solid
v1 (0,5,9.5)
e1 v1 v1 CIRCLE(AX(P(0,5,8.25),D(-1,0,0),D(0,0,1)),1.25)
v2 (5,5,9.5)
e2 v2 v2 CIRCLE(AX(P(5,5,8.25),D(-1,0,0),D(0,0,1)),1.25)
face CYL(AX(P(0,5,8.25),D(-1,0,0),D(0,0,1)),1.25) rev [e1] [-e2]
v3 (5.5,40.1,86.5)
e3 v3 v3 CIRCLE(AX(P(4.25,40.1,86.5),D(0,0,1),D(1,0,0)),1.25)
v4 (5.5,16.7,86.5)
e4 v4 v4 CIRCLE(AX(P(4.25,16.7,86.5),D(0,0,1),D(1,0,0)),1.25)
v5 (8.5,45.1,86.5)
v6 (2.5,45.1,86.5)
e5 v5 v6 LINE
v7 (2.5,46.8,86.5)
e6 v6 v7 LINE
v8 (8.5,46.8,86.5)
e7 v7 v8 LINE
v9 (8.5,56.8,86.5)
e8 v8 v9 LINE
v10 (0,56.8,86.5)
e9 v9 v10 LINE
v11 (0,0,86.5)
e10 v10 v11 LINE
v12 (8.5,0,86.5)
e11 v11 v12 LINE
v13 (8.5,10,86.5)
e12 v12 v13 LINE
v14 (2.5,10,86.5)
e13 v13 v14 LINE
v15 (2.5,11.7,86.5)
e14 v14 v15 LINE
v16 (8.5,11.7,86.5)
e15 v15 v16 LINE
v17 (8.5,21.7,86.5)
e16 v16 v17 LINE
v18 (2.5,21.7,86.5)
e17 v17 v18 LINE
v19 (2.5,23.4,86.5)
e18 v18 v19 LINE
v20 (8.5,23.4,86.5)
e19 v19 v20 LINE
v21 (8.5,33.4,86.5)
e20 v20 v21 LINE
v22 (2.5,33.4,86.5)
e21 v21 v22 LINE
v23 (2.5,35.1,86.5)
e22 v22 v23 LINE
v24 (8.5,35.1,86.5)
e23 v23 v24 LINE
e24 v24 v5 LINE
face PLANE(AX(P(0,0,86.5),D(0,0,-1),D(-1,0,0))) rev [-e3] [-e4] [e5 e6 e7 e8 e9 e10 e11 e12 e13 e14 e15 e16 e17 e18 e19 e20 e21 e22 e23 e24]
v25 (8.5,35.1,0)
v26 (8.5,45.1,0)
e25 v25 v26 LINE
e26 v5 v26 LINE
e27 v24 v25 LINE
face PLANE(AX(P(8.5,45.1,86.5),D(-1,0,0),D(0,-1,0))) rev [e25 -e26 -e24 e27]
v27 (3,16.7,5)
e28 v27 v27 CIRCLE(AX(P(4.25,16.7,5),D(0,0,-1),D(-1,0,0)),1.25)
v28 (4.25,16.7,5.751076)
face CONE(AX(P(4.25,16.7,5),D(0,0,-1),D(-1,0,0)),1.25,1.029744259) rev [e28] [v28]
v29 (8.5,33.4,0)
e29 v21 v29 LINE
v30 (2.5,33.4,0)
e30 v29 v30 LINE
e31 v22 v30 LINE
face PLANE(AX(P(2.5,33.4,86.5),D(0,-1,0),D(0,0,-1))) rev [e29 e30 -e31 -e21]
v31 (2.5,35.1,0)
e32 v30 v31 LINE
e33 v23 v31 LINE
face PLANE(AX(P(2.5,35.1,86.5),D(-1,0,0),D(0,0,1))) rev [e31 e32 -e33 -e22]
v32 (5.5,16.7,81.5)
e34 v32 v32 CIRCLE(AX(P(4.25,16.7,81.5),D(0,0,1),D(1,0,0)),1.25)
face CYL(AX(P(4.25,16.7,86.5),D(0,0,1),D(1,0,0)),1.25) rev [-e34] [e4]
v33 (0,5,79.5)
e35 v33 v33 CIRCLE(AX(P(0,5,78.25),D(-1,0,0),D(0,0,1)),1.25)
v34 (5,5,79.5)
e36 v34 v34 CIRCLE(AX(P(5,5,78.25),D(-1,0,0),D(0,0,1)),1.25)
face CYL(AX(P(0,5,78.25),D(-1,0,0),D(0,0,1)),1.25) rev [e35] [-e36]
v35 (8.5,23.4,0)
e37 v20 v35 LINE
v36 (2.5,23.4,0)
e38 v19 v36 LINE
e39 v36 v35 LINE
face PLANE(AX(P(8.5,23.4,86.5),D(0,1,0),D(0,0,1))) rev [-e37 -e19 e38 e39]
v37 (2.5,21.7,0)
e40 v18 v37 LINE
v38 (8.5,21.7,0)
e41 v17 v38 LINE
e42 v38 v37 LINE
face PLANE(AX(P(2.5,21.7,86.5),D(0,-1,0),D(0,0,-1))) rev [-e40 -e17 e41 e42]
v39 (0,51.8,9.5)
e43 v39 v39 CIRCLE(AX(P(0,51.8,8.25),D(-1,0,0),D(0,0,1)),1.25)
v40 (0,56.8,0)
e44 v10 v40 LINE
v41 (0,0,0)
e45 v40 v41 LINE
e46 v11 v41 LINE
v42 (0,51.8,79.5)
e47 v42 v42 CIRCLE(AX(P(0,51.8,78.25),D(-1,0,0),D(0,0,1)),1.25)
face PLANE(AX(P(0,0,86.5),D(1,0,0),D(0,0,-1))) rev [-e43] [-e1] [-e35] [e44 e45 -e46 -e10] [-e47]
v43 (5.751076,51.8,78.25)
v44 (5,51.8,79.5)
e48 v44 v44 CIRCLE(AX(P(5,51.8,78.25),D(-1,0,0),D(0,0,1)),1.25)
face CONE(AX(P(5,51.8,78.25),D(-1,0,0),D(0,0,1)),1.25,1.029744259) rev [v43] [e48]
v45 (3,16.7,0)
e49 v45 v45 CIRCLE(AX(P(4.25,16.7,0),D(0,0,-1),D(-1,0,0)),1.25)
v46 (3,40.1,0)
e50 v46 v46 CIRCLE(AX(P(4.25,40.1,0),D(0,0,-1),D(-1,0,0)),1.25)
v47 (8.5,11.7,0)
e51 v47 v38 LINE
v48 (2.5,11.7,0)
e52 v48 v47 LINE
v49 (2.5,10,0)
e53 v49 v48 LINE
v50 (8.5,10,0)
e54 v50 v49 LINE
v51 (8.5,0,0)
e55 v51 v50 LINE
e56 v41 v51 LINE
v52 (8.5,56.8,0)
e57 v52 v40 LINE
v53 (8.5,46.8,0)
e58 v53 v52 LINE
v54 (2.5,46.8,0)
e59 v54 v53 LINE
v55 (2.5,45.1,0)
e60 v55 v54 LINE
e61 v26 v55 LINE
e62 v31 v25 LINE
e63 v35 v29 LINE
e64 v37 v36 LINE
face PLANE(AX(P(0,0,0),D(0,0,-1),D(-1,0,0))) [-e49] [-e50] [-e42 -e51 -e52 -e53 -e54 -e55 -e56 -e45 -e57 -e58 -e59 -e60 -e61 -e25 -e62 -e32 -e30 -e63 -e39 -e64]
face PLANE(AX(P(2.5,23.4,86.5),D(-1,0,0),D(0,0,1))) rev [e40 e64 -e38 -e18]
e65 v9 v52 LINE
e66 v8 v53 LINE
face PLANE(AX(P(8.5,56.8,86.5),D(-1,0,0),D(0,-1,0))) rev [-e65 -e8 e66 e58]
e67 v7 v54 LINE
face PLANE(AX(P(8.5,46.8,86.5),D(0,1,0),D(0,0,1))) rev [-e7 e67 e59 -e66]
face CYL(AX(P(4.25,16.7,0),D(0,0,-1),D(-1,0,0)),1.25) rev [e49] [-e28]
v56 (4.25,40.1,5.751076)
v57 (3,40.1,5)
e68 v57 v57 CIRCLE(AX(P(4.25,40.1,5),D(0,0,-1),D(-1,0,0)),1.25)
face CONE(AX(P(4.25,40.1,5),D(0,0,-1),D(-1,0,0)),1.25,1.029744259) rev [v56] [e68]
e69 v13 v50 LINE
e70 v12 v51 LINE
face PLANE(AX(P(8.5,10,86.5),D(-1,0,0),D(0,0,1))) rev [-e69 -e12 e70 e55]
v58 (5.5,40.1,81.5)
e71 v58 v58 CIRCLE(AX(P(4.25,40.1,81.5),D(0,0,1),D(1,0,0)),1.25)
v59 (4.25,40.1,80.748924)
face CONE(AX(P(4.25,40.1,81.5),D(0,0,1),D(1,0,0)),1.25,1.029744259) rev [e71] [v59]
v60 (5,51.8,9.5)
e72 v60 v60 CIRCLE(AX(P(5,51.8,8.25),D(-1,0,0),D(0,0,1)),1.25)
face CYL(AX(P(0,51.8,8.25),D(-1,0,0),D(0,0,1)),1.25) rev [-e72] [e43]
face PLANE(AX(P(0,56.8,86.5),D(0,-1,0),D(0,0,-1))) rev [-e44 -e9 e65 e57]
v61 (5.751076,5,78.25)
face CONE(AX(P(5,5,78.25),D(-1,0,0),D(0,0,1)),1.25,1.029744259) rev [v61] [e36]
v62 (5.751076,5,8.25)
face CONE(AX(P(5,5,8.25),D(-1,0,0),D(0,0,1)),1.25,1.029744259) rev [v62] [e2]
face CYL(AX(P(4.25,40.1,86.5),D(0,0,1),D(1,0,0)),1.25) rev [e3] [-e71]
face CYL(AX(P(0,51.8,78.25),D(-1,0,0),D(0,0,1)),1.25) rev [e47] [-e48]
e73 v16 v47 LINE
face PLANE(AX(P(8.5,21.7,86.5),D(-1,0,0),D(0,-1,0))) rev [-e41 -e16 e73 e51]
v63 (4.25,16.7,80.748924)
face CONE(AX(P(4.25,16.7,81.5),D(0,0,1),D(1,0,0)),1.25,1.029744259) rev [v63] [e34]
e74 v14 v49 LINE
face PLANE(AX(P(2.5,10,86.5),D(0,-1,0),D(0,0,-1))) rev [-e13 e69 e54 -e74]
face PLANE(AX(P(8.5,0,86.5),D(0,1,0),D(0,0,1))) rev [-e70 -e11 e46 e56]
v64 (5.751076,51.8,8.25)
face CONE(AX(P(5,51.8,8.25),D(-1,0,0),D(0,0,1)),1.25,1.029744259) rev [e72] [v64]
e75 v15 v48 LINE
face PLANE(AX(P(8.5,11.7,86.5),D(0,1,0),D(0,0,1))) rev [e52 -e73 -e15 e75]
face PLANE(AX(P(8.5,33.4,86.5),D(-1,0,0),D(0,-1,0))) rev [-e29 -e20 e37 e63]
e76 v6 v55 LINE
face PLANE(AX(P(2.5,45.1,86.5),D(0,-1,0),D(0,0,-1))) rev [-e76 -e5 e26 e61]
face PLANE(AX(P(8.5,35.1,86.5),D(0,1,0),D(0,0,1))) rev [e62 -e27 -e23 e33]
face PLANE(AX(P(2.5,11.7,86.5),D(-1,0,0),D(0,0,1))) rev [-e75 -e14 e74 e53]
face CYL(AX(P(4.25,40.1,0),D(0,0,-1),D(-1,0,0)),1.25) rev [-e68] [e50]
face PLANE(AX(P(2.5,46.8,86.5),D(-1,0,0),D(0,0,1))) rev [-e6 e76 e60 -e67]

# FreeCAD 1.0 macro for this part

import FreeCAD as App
import Part
import Sketcher

V = App.Vector
Q = App.Units.Quantity

doc = App.newDocument("Part")
body = doc.addObject("PartDesign::Body", "Body")

# Sketch on XY plane
sketch1 = doc.addObject("Sketcher::SketchObject", "Sketch")
body.addObject(sketch1)
sketch1.AttachmentSupport = (doc.XY_Plane, [""])
sketch1.MapMode = "FlatFace"
sketch1.addGeometry([
    Part.LineSegment(V(0, 56.8, 0), V(0, 0, 0)),  # 0
    Part.LineSegment(V(0, 0, 0), V(8.5, 0, 0)),  # 1
    Part.LineSegment(V(8.5, 0, 0), V(8.5, 10, 0)),  # 2
    Part.LineSegment(V(8.5, 10, 0), V(2.5, 10, 0)),  # 3
    Part.LineSegment(V(2.5, 10, 0), V(2.5, 11.7, 0)),  # 4
    Part.LineSegment(V(2.5, 11.7, 0), V(8.5, 11.7, 0)),  # 5
    Part.LineSegment(V(8.5, 11.7, 0), V(8.5, 21.7, 0)),  # 6
    Part.LineSegment(V(8.5, 21.7, 0), V(2.5, 21.7, 0)),  # 7
    Part.LineSegment(V(2.5, 21.7, 0), V(2.5, 23.4, 0)),  # 8
    Part.LineSegment(V(2.5, 23.4, 0), V(8.5, 23.4, 0)),  # 9
    Part.LineSegment(V(8.5, 23.4, 0), V(8.5, 33.4, 0)),  # 10
    Part.LineSegment(V(8.5, 33.4, 0), V(2.5, 33.4, 0)),  # 11
    Part.LineSegment(V(2.5, 33.4, 0), V(2.5, 35.1, 0)),  # 12
    Part.LineSegment(V(2.5, 35.1, 0), V(8.5, 35.1, 0)),  # 13
    Part.LineSegment(V(8.5, 35.1, 0), V(8.5, 45.1, 0)),  # 14
    Part.LineSegment(V(8.5, 45.1, 0), V(2.5, 45.1, 0)),  # 15
    Part.LineSegment(V(2.5, 45.1, 0), V(2.5, 46.8, 0)),  # 16
    Part.LineSegment(V(2.5, 46.8, 0), V(8.5, 46.8, 0)),  # 17
    Part.LineSegment(V(8.5, 46.8, 0), V(8.5, 56.8, 0)),  # 18
    Part.LineSegment(V(8.5, 56.8, 0), V(0, 56.8, 0)),  # 19
], False)
sketch1.addConstraint([
    Sketcher.Constraint("Coincident", 0, 2, 1, 1),
    Sketcher.Constraint("Coincident", 1, 2, 2, 1),
    Sketcher.Constraint("Coincident", 2, 2, 3, 1),
    Sketcher.Constraint("Coincident", 3, 2, 4, 1),
    Sketcher.Constraint("Coincident", 4, 2, 5, 1),
    Sketcher.Constraint("Coincident", 5, 2, 6, 1),
    Sketcher.Constraint("Coincident", 6, 2, 7, 1),
    Sketcher.Constraint("Coincident", 7, 2, 8, 1),
    Sketcher.Constraint("Coincident", 8, 2, 9, 1),
    Sketcher.Constraint("Coincident", 9, 2, 10, 1),
    Sketcher.Constraint("Coincident", 10, 2, 11, 1),
    Sketcher.Constraint("Coincident", 11, 2, 12, 1),
    Sketcher.Constraint("Coincident", 12, 2, 13, 1),
    Sketcher.Constraint("Coincident", 13, 2, 14, 1),
    Sketcher.Constraint("Coincident", 14, 2, 15, 1),
    Sketcher.Constraint("Coincident", 15, 2, 16, 1),
    Sketcher.Constraint("Coincident", 16, 2, 17, 1),
    Sketcher.Constraint("Coincident", 17, 2, 18, 1),
    Sketcher.Constraint("Coincident", 18, 2, 19, 1),
    Sketcher.Constraint("Coincident", 19, 2, 0, 1),
    Sketcher.Constraint("Vertical", 0),
    Sketcher.Constraint("Horizontal", 1),
    Sketcher.Constraint("Vertical", 2),
    Sketcher.Constraint("Horizontal", 3),
    Sketcher.Constraint("Vertical", 4),
    Sketcher.Constraint("Horizontal", 5),
    Sketcher.Constraint("Vertical", 6),
    Sketcher.Constraint("Horizontal", 7),
    Sketcher.Constraint("Vertical", 8),
    Sketcher.Constraint("Horizontal", 9),
    Sketcher.Constraint("Vertical", 10),
    Sketcher.Constraint("Horizontal", 11),
    Sketcher.Constraint("Vertical", 12),
    Sketcher.Constraint("Horizontal", 13),
    Sketcher.Constraint("Vertical", 14),
    Sketcher.Constraint("Horizontal", 15),
    Sketcher.Constraint("Vertical", 16),
    Sketcher.Constraint("Horizontal", 17),
    Sketcher.Constraint("Vertical", 18),
    Sketcher.Constraint("Horizontal", 19),
    Sketcher.Constraint("Coincident", 0, 2, -1, 1),
    Sketcher.Constraint("Vertical", 2, 2, 5, 2),
    Sketcher.Constraint("Vertical", 4, 2, 7, 2),
    Sketcher.Constraint("Vertical", 6, 2, 9, 2),
    Sketcher.Constraint("Vertical", 8, 2, 11, 2),
    Sketcher.Constraint("Vertical", 10, 2, 13, 2),
    Sketcher.Constraint("Vertical", 12, 2, 15, 2),
    Sketcher.Constraint("Vertical", 14, 2, 17, 2),
    Sketcher.Constraint("Equal", 2, 6),
    Sketcher.Constraint("Equal", 4, 8),
    Sketcher.Constraint("Equal", 6, 10),
    Sketcher.Constraint("Equal", 8, 12),
    Sketcher.Constraint("Equal", 10, 14),
    Sketcher.Constraint("Equal", 12, 16),
    Sketcher.Constraint("Equal", 14, 18),
    Sketcher.Constraint("DistanceX", 3, 2, 3, 1, Q("6 mm")),
    Sketcher.Constraint("DistanceY", 2, 1, 2, 2, Q("10 mm")),
    Sketcher.Constraint("DistanceX", 1, 1, 1, 2, Q("8.5 mm")),
    Sketcher.Constraint("DistanceY", 0, 2, 0, 1, Q("56.8 mm")),
])
pad1 = doc.addObject("PartDesign::Pad", "Pad")
body.addObject(pad1)
pad1.Profile = sketch1
pad1.Length = 86.5

# Sketch on YZ plane
sketch2 = doc.addObject("Sketcher::SketchObject", "Sketch001")
body.addObject(sketch2)
sketch2.AttachmentSupport = (doc.YZ_Plane, [""])
sketch2.MapMode = "FlatFace"
sketch2.AttachmentOffset = App.Placement(V(0, 0, 4.25), App.Rotation())
sketch2.addGeometry([
    Part.LineSegment(V(40.1, 80.7, 0), V(40.1, 86.5, 0)),
    Part.LineSegment(V(40.1, 86.5, 0), V(38.9, 86.5, 0)),
    Part.LineSegment(V(38.9, 86.5, 0), V(38.9, 81.5, 0)),
    Part.LineSegment(V(38.9, 81.5, 0), V(40.1, 80.7, 0)),
], False)
sketch2.addGeometry(Part.LineSegment(V(40.1, 86.5, 0), V(40.1, 80.7, 0)), True)  # axis
sketch2.addConstraint([
    Sketcher.Constraint("Coincident", 0, 2, 1, 1),
    Sketcher.Constraint("Coincident", 1, 2, 2, 1),
    Sketcher.Constraint("Coincident", 2, 2, 3, 1),
    Sketcher.Constraint("Coincident", 3, 2, 0, 1),
    Sketcher.Constraint("Vertical", 0),
    Sketcher.Constraint("Horizontal", 1),
    Sketcher.Constraint("Vertical", 2),
    Sketcher.Constraint("Vertical", 4),
    Sketcher.Constraint("Coincident", 4, 1, 0, 2),
    Sketcher.Constraint("Equal", 0, 4),
    Sketcher.Constraint("DistanceY", 2, 2, 2, 1, Q("5 mm")),
    Sketcher.Constraint("Angle", 3, Q("-31 deg")),
    Sketcher.Constraint("DistanceX", 1, 2, 1, 1, Q("1.25 mm")),
    Sketcher.Constraint("DistanceX", -1, 1, 0, 2, Q("40.1 mm")),
    Sketcher.Constraint("DistanceY", -1, 1, 0, 2, Q("86.5 mm")),
])
groove = doc.addObject("PartDesign::Groove", "Groove")
body.addObject(groove)
groove.Profile = sketch2
groove.ReferenceAxis = (sketch2, ["Axis0"])
groove.Angle = 360
doc.recompute()

linearpattern = doc.addObject("PartDesign::LinearPattern", "LinearPattern")
body.addObject(linearpattern)
linearpattern.Originals = [groove]
linearpattern.Direction = (doc.Y_Axis, [""])
linearpattern.Mode = "offset"
linearpattern.Offset = 23.4
linearpattern.Occurrences = 2
linearpattern.Reversed = True
body.Tip = linearpattern
doc.recompute()

datumplane = doc.addObject("PartDesign::Plane", "DatumPlane")
body.addObject(datumplane)
datumplane.AttachmentSupport = (doc.XY_Plane, [""])
datumplane.MapMode = "FlatFace"
datumplane.AttachmentOffset = App.Placement(V(0, 0, 43.25), App.Rotation())
mirrored = doc.addObject("PartDesign::Mirrored", "Mirrored")
body.addObject(mirrored)
mirrored.Originals = [groove]
mirrored.MirrorPlane = (datumplane, [""])
body.Tip = mirrored

# Sketch on YZ plane
sketch3 = doc.addObject("Sketcher::SketchObject", "Sketch002")
body.addObject(sketch3)
sketch3.AttachmentSupport = (doc.YZ_Plane, [""])
sketch3.MapMode = "FlatFace"
sketch3.AttachmentOffset = App.Placement(V(0, 0, 4.25), App.Rotation())
sketch3.addGeometry([
    Part.LineSegment(V(16.7, 0, 0), V(16.7, 5.8, 0)),
    Part.LineSegment(V(16.7, 5.8, 0), V(15.4, 5, 0)),
    Part.LineSegment(V(15.4, 5, 0), V(15.4, 0, 0)),
    Part.LineSegment(V(15.4, 0, 0), V(16.7, 0, 0)),
], False)
sketch3.addGeometry(Part.LineSegment(V(16.7, 5.8, 0), V(16.7, 0, 0)), True)  # axis
sketch3.addConstraint([
    Sketcher.Constraint("Coincident", 0, 2, 1, 1),
    Sketcher.Constraint("Coincident", 1, 2, 2, 1),
    Sketcher.Constraint("Coincident", 2, 2, 3, 1),
    Sketcher.Constraint("Coincident", 3, 2, 0, 1),
    Sketcher.Constraint("Vertical", 0),
    Sketcher.Constraint("Vertical", 2),
    Sketcher.Constraint("Horizontal", 3),
    Sketcher.Constraint("Vertical", 4),
    Sketcher.Constraint("Coincident", 4, 1, 0, 2),
    Sketcher.Constraint("PointOnObject", 2, 2, -1),
    Sketcher.Constraint("PointOnObject", 4, 2, -1),
    Sketcher.Constraint("DistanceY", 2, 2, 2, 1, Q("5 mm")),
    Sketcher.Constraint("Angle", 1, Q("-149 deg")),
    Sketcher.Constraint("DistanceX", 3, 1, 3, 2, Q("1.25 mm")),
    Sketcher.Constraint("DistanceX", -1, 1, 0, 2, Q("16.7 mm")),
])
groove2 = doc.addObject("PartDesign::Groove", "Groove001")
body.addObject(groove2)
groove2.Profile = sketch3
groove2.ReferenceAxis = (sketch3, ["Axis0"])
groove2.Angle = 360

# Sketch on XZ plane
sketch4 = doc.addObject("Sketcher::SketchObject", "Sketch003")
body.addObject(sketch4)
sketch4.AttachmentSupport = (doc.XZ_Plane, [""])
sketch4.MapMode = "FlatFace"
sketch4.AttachmentOffset = App.Placement(V(0, 0, -5), App.Rotation())
sketch4.addGeometry([
    Part.LineSegment(V(5.8, 8.2, 0), V(0, 8.2, 0)),
    Part.LineSegment(V(0, 8.2, 0), V(0, 9.5, 0)),
    Part.LineSegment(V(0, 9.5, 0), V(5, 9.5, 0)),
    Part.LineSegment(V(5, 9.5, 0), V(5.8, 8.2, 0)),
], False)
sketch4.addGeometry(Part.LineSegment(V(0, 8.2, 0), V(5.8, 8.2, 0)), True)  # axis
sketch4.addConstraint([
    Sketcher.Constraint("Coincident", 0, 2, 1, 1),
    Sketcher.Constraint("Coincident", 1, 2, 2, 1),
    Sketcher.Constraint("Coincident", 2, 2, 3, 1),
    Sketcher.Constraint("Coincident", 3, 2, 0, 1),
    Sketcher.Constraint("Horizontal", 0),
    Sketcher.Constraint("Vertical", 1),
    Sketcher.Constraint("Horizontal", 2),
    Sketcher.Constraint("Horizontal", 4),
    Sketcher.Constraint("Coincident", 4, 1, 0, 2),
    Sketcher.Constraint("PointOnObject", 0, 2, -2),
    Sketcher.Constraint("Equal", 0, 4),
    Sketcher.Constraint("DistanceX", 2, 1, 2, 2, Q("5 mm")),
    Sketcher.Constraint("Angle", 3, Q("-59 deg")),
    Sketcher.Constraint("DistanceY", 1, 1, 1, 2, Q("1.25 mm")),
    Sketcher.Constraint("DistanceY", -1, 1, 1, 2, Q("9.5 mm")),
])
groove3 = doc.addObject("PartDesign::Groove", "Groove002")
body.addObject(groove3)
groove3.Profile = sketch4
groove3.ReferenceAxis = (sketch4, ["Axis0"])
groove3.Angle = 360
doc.recompute()

linearpattern2 = doc.addObject("PartDesign::LinearPattern", "LinearPattern001")
body.addObject(linearpattern2)
linearpattern2.Originals = [groove3]
linearpattern2.Direction = (doc.Y_Axis, [""])
linearpattern2.Mode = "offset"
linearpattern2.Offset = 46.8
linearpattern2.Occurrences = 2
body.Tip = linearpattern2
doc.recompute()

datumplane2 = doc.addObject("PartDesign::Plane", "DatumPlane001")
body.addObject(datumplane2)
datumplane2.AttachmentSupport = (doc.XY_Plane, [""])
datumplane2.MapMode = "FlatFace"
datumplane2.AttachmentOffset = App.Placement(V(0, 0, 43.25), App.Rotation())
mirrored2 = doc.addObject("PartDesign::Mirrored", "Mirrored001")
body.addObject(mirrored2)
mirrored2.Originals = [groove3]
mirrored2.MirrorPlane = (datumplane2, [""])
body.Tip = mirrored2

# Sketch on XZ plane
sketch5 = doc.addObject("Sketcher::SketchObject", "Sketch004")
body.addObject(sketch5)
sketch5.AttachmentSupport = (doc.XZ_Plane, [""])
sketch5.MapMode = "FlatFace"
sketch5.AttachmentOffset = App.Placement(V(0, 0, -51.8), App.Rotation())
sketch5.addGeometry([
    Part.LineSegment(V(0, 78.2, 0), V(5.8, 78.2, 0)),
    Part.LineSegment(V(5.8, 78.2, 0), V(5, 77, 0)),
    Part.LineSegment(V(5, 77, 0), V(0, 77, 0)),
    Part.LineSegment(V(0, 77, 0), V(0, 78.2, 0)),
], False)
sketch5.addGeometry(Part.LineSegment(V(5.8, 78.2, 0), V(0, 78.2, 0)), True)  # axis
sketch5.addConstraint([
    Sketcher.Constraint("Coincident", 0, 2, 1, 1),
    Sketcher.Constraint("Coincident", 1, 2, 2, 1),
    Sketcher.Constraint("Coincident", 2, 2, 3, 1),
    Sketcher.Constraint("Coincident", 3, 2, 0, 1),
    Sketcher.Constraint("Horizontal", 0),
    Sketcher.Constraint("Horizontal", 2),
    Sketcher.Constraint("Vertical", 3),
    Sketcher.Constraint("Horizontal", 4),
    Sketcher.Constraint("Coincident", 4, 1, 0, 2),
    Sketcher.Constraint("PointOnObject", 2, 2, -2),
    Sketcher.Constraint("PointOnObject", 4, 2, -2),
    Sketcher.Constraint("DistanceX", 2, 2, 2, 1, Q("5 mm")),
    Sketcher.Constraint("Angle", 1, Q("-121 deg")),
    Sketcher.Constraint("DistanceY", -1, 1, 1, 2, Q("77 mm")),
    Sketcher.Constraint("DistanceY", 3, 1, 3, 2, Q("1.25 mm")),
])
groove4 = doc.addObject("PartDesign::Groove", "Groove003")
body.addObject(groove4)
groove4.Profile = sketch5
groove4.ReferenceAxis = (sketch5, ["Axis0"])
groove4.Angle = 360

doc.recompute()
